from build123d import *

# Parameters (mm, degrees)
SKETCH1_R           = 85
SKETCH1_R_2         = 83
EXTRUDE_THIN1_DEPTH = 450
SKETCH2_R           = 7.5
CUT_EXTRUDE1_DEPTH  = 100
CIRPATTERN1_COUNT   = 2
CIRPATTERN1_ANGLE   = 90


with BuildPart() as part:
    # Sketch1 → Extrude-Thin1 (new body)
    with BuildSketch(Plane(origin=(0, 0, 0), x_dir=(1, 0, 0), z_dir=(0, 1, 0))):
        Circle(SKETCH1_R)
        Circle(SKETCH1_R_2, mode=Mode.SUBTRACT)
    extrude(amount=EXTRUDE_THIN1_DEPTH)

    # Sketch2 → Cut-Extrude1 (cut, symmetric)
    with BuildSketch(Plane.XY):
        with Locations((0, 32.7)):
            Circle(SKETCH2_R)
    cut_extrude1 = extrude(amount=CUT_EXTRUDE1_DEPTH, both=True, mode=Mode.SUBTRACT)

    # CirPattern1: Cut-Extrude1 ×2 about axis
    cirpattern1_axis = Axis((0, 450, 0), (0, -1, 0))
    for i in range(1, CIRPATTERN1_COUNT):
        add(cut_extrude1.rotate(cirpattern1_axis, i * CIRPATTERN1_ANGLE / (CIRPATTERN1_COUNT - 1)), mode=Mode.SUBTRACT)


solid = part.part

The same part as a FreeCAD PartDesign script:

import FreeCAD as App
import Part
import Sketcher

V = App.Vector

doc = App.newDocument("Part")
params = doc.addObject("Spreadsheet::Sheet", "Params")
for row, (alias, value) in enumerate([
    ("sketch1_diameter", "170 mm"),
    ("sketch1_diameter2", "166 mm"),
    ("pad1_length", "450 mm"),
    ("sketch2_diameter", "15 mm"),
    ("pocket1_length", "200 mm"),
], start=1):
    params.set(f"A{row}", alias)
    params.set(f"B{row}", "=" + value)
    params.setAlias(f"B{row}", alias)

body = doc.addObject("PartDesign::Body", "Body")

sketch1 = body.newObject("Sketcher::SketchObject", "Sketch")
sketch1.AttachmentSupport = (doc.getObject("XZ_Plane"), [""])
sketch1.MapMode = "FlatFace"
sketch1.addGeometry([
    Part.Circle(V(0, 0, 0), V(0, 0, 1), 85),
    Part.Circle(V(0, 0, 0), V(0, 0, 1), 83),
], False)
sketch1.addConstraint([
    Sketcher.Constraint("Coincident", 0, 3, -1, 1),
    Sketcher.Constraint("Coincident", 1, 3, -1, 1),
    Sketcher.Constraint("Diameter", 0, 170.0),
    Sketcher.Constraint("Diameter", 1, 166.0),
])
sketch1.setExpression("Constraints[2]", "Params.sketch1_diameter")
sketch1.setExpression("Constraints[3]", "Params.sketch1_diameter2")
pad1 = body.newObject("PartDesign::Pad", "Pad")
pad1.Profile = sketch1
pad1.setExpression("Length", "Params.pad1_length")
pad1.Reversed = True

sketch2 = body.newObject("Sketcher::SketchObject", "Sketch001")
sketch2.AttachmentSupport = (doc.getObject("XY_Plane"), [""])
sketch2.MapMode = "FlatFace"
sketch2.addGeometry(Part.Circle(V(0, 33, 0), V(0, 0, 1), 8), False)
sketch2.addConstraint([
    Sketcher.Constraint("PointOnObject", 0, 3, -2),
    Sketcher.Constraint("Diameter", 0, 15.0),
    Sketcher.Constraint("DistanceY", -1, 1, 0, 3, 32.7),
])
sketch2.setExpression("Constraints[1]", "Params.sketch2_diameter")
pocket1 = body.newObject("PartDesign::Pocket", "Pocket")
pocket1.Profile = sketch2
pocket1.setExpression("Length", "Params.pocket1_length")
pocket1.Midplane = True
doc.recompute()

polarpattern = body.newObject("PartDesign::PolarPattern", "PolarPattern")
polarpattern.Originals = [pocket1]
polarpattern.Axis = (doc.getObject("Y_Axis"), [""])
polarpattern.Angle = 90
polarpattern.Occurrences = 2
polarpattern.Reversed = True
body.Tip = polarpattern

doc.recompute()
